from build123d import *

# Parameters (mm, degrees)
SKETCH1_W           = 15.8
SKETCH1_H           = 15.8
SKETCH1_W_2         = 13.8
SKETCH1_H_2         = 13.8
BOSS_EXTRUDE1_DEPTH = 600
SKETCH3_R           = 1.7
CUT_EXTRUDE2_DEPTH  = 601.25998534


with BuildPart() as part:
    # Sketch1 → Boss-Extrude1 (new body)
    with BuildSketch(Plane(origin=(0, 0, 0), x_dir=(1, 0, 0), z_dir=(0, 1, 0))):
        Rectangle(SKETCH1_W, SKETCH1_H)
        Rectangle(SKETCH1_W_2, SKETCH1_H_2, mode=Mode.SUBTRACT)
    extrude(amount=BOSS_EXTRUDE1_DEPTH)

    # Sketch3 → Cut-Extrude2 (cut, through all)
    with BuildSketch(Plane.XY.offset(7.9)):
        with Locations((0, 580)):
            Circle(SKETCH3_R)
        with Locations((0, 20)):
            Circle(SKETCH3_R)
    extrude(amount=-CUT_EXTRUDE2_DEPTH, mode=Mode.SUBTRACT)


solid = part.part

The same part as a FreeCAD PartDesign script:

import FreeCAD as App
import Part
import Sketcher

V = App.Vector
Q = App.Units.Quantity


def add_polygon(sketch, points):
    """Adds a closed chain of lines whose ends are joined by coincident constraints."""
    first, n = sketch.GeometryCount, len(points)
    for a, b in zip(points, points[1:] + points[:1]):
        sketch.addGeometry(Part.LineSegment(App.Vector(*a, 0), App.Vector(*b, 0)), False)
    for i in range(n):
        sketch.addConstraint(Sketcher.Constraint("Coincident", first + i, 2, first + (i + 1) % n, 1))

doc = App.newDocument("Part")
body = doc.addObject("PartDesign::Body", "Body")

sketch1 = body.newObject("Sketcher::SketchObject", "Sketch")
sketch1.AttachmentSupport = (doc.getObject("XZ_Plane"), [""])
sketch1.MapMode = "FlatFace"
add_polygon(sketch1, [(-8, -8), (-8, 8), (8, 8), (8, -8)])
add_polygon(sketch1, [(7, 7), (-7, 7), (-7, -7), (7, -7)])
sketch1.addConstraint(Sketcher.Constraint("Vertical", 0))
sketch1.addConstraint(Sketcher.Constraint("Horizontal", 1))
sketch1.addConstraint(Sketcher.Constraint("Vertical", 2))
sketch1.addConstraint(Sketcher.Constraint("Horizontal", 3))
sketch1.addConstraint(Sketcher.Constraint("Horizontal", 4))
sketch1.addConstraint(Sketcher.Constraint("Vertical", 5))
sketch1.addConstraint(Sketcher.Constraint("Horizontal", 6))
sketch1.addConstraint(Sketcher.Constraint("Vertical", 7))
sketch1.addConstraint(Sketcher.Constraint("Symmetric", 0, 2, 2, 2, -1, 1))
sketch1.addConstraint(Sketcher.Constraint("Symmetric", 4, 2, 6, 2, -1, 1))
sketch1.addConstraint(Sketcher.Constraint("Equal", 3, 0))
sketch1.addConstraint(Sketcher.Constraint("Equal", 6, 5))
sketch1.addConstraint(Sketcher.Constraint("DistanceX", 1, 1, 1, 2, Q("15.8 mm")))
sketch1.addConstraint(Sketcher.Constraint("DistanceX", 4, 2, 4, 1, Q("13.8 mm")))
pad1 = body.newObject("PartDesign::Pad", "Pad")
pad1.Profile = sketch1
pad1.Length = 600
pad1.Reversed = True

sketch2 = body.newObject("Sketcher::SketchObject", "Sketch001")
sketch2.AttachmentSupport = (doc.getObject("XY_Plane"), [""])
sketch2.MapMode = "FlatFace"
sketch2.AttachmentOffset = App.Placement(V(0, 0, 7.9), App.Rotation())
sketch2.addGeometry(Part.Circle(V(0, 580, 0), V(0, 0, 1), 1.7), False)
sketch2.addGeometry(Part.Circle(V(0, 20, 0), V(0, 0, 1), 1.7), False)
sketch2.addConstraint(Sketcher.Constraint("Equal", 0, 1))
sketch2.addConstraint(Sketcher.Constraint("PointOnObject", 0, 3, -2))
sketch2.addConstraint(Sketcher.Constraint("PointOnObject", 1, 3, -2))
sketch2.addConstraint(Sketcher.Constraint("Diameter", 0, Q("3.4 mm")))
sketch2.addConstraint(Sketcher.Constraint("DistanceY", -1, 1, 0, 3, Q("580 mm")))
sketch2.addConstraint(Sketcher.Constraint("DistanceY", -1, 1, 1, 3, Q("20 mm")))
pocket1 = body.newObject("PartDesign::Pocket", "Pocket")
pocket1.Profile = sketch2
pocket1.Type = "ThroughAll"

doc.recompute()
